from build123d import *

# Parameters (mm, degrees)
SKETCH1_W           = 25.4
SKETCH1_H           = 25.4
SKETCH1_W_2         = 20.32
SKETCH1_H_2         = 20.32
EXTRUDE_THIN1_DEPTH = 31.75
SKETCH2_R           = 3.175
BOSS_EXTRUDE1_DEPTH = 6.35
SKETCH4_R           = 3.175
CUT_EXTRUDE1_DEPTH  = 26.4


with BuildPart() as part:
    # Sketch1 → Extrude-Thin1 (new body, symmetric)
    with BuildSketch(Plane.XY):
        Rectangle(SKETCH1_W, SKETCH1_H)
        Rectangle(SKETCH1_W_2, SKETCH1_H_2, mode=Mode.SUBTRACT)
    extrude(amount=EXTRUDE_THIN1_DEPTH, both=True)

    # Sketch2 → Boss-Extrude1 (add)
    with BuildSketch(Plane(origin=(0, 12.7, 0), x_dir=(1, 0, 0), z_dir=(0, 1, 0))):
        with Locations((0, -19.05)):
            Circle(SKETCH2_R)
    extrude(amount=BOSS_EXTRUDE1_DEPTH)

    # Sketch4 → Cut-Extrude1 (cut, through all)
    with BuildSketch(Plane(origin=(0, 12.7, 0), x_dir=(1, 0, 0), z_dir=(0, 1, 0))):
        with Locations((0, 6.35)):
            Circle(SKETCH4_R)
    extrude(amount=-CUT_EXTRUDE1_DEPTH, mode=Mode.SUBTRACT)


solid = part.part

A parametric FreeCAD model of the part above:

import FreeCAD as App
import Part
import Sketcher
Q = App.Units.Quantity

doc = App.newDocument("Part")
params = doc.addObject("Spreadsheet::Sheet", "Params")
for row, (alias, value) in enumerate([
    ("sketch1_width", "1 in"),
    ("sketch1_width2", "0.8 in"),
    ("pad1_length", "2.5 in"),
    ("sketch2_diameter", "0.25 in"),
    ("pad2_length", "0.25 in"),
    ("sketch3_diameter", "0.25 in"),
], start=1):
    params.set(f"A{row}", alias)
    params.set(f"B{row}", "=" + value)
    params.setAlias(f"B{row}", alias)

body = doc.addObject("PartDesign::Body", "Body")

# Sketch on XY plane
sketch1 = body.newObject("Sketcher::SketchObject", "Sketch")
sketch1.AttachmentSupport = (doc.getObject("XY_Plane"), [""])
sketch1.MapMode = "FlatFace"
sketch1.addGeometry([
    Part.LineSegment(App.Vector(-13, 13, 0), App.Vector(-13, -13, 0)),  # 0
    Part.LineSegment(App.Vector(-13, -13, 0), App.Vector(13, -13, 0)),  # 1
    Part.LineSegment(App.Vector(13, -13, 0), App.Vector(13, 13, 0)),  # 2
    Part.LineSegment(App.Vector(13, 13, 0), App.Vector(-13, 13, 0)),  # 3
    Part.LineSegment(App.Vector(10, -10, 0), App.Vector(-10, -10, 0)),  # 4
    Part.LineSegment(App.Vector(-10, -10, 0), App.Vector(-10, 10, 0)),  # 5
    Part.LineSegment(App.Vector(-10, 10, 0), App.Vector(10, 10, 0)),  # 6
    Part.LineSegment(App.Vector(10, 10, 0), App.Vector(10, -10, 0)),  # 7
], False)
sketch1.addConstraint([
    Sketcher.Constraint("Coincident", 0, 2, 1, 1),
    Sketcher.Constraint("Coincident", 1, 2, 2, 1),
    Sketcher.Constraint("Coincident", 2, 2, 3, 1),
    Sketcher.Constraint("Coincident", 3, 2, 0, 1),
    Sketcher.Constraint("Coincident", 4, 2, 5, 1),
    Sketcher.Constraint("Coincident", 5, 2, 6, 1),
    Sketcher.Constraint("Coincident", 6, 2, 7, 1),
    Sketcher.Constraint("Coincident", 7, 2, 4, 1),
    Sketcher.Constraint("Vertical", 0),
    Sketcher.Constraint("Horizontal", 1),
    Sketcher.Constraint("Vertical", 2),
    Sketcher.Constraint("Horizontal", 3),
    Sketcher.Constraint("Horizontal", 4),
    Sketcher.Constraint("Vertical", 5),
    Sketcher.Constraint("Horizontal", 6),
    Sketcher.Constraint("Vertical", 7),
    Sketcher.Constraint("Symmetric", 0, 2, 2, 2, -1, 1),
    Sketcher.Constraint("Symmetric", 4, 2, 6, 2, -1, 1),
    Sketcher.Constraint("Equal", 3, 0),
    Sketcher.Constraint("Equal", 6, 5),
    Sketcher.Constraint("DistanceX", 1, 1, 1, 2, Q("1 in")),
    Sketcher.Constraint("DistanceX", 4, 2, 4, 1, Q("0.8 in")),
])
sketch1.setExpression("Constraints[20]", "Params.sketch1_width")
sketch1.setExpression("Constraints[21]", "Params.sketch1_width2")
pad1 = body.newObject("PartDesign::Pad", "Pad")
pad1.Profile = sketch1
pad1.setExpression("Length", "Params.pad1_length")
pad1.Midplane = True

# Sketch on XZ plane
sketch2 = body.newObject("Sketcher::SketchObject", "Sketch001")
sketch2.AttachmentSupport = (doc.getObject("XZ_Plane"), [""])
sketch2.MapMode = "FlatFace"
sketch2.AttachmentOffset = App.Placement(App.Vector(0, 0, -0.5 * 25.4), App.Rotation())
sketch2.addGeometry(Part.Circle(App.Vector(0, 19.1, 0), App.Vector(0, 0, 1), 3.2), False)
sketch2.addConstraint([
    Sketcher.Constraint("PointOnObject", 0, 3, -2),
    Sketcher.Constraint("Diameter", 0, Q("0.25 in")),
    Sketcher.Constraint("DistanceY", -1, 1, 0, 3, Q("0.75 in")),
])
sketch2.setExpression("Constraints[1]", "Params.sketch2_diameter")
pad2 = body.newObject("PartDesign::Pad", "Pad001")
pad2.Profile = sketch2
pad2.setExpression("Length", "Params.pad2_length")
pad2.Reversed = True

# Sketch on XZ plane
sketch3 = body.newObject("Sketcher::SketchObject", "Sketch002")
sketch3.AttachmentSupport = (doc.getObject("XZ_Plane"), [""])
sketch3.MapMode = "FlatFace"
sketch3.AttachmentOffset = App.Placement(App.Vector(0, 0, -0.5 * 25.4), App.Rotation())
sketch3.addGeometry(Part.Circle(App.Vector(0, -6.3, 0), App.Vector(0, 0, 1), 3.2), False)
sketch3.addConstraint([
    Sketcher.Constraint("PointOnObject", 0, 3, -2),
    Sketcher.Constraint("Diameter", 0, Q("0.25 in")),
    Sketcher.Constraint("DistanceY", 0, 3, -1, 1, Q("0.25 in")),
])
sketch3.setExpression("Constraints[1]", "Params.sketch3_diameter")
pocket1 = body.newObject("PartDesign::Pocket", "Pocket")
pocket1.Profile = sketch3
pocket1.Type = "ThroughAll"
pocket1.Reversed = True

doc.recompute()
